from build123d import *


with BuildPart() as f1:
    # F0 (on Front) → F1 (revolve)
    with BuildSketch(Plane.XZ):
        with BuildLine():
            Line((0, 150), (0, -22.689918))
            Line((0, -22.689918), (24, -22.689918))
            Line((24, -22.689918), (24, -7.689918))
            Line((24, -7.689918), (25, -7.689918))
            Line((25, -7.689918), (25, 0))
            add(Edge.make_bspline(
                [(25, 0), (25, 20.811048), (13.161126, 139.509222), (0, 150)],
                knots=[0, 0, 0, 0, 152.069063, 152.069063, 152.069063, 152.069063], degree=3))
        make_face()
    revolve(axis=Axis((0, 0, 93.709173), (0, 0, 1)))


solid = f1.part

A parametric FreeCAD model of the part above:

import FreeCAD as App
import Part
import Sketcher

V = App.Vector
Q = App.Units.Quantity

doc = App.newDocument("Part")
params = doc.addObject("Spreadsheet::Sheet", "Params")
for row, (alias, value) in enumerate([
    ("sketch1_width", "24 mm"),
    ("sketch1_height", "15 mm"),
    ("revolution_angle", "360 deg"),
], start=1):
    params.set(f"A{row}", alias)
    params.set(f"B{row}", "=" + value)
    params.setAlias(f"B{row}", alias)

body = doc.addObject("PartDesign::Body", "Body")

# Sketch on XZ plane
sketch1 = body.newObject("Sketcher::SketchObject", "Sketch")
sketch1.AttachmentSupport = (doc.getObject("XZ_Plane"), [""])
sketch1.MapMode = "FlatFace"
sketch1.addGeometry([
    Part.LineSegment(V(0, 150, 0), V(0, -22.689918, 0)),  # 0
    Part.LineSegment(V(0, -22.689918, 0), V(24, -22.689918, 0)),  # 1
    Part.LineSegment(V(24, -22.689918, 0), V(24, -7.689918, 0)),  # 2
    Part.LineSegment(V(24, -7.689918, 0), V(25, -7.689918, 0)),  # 3
    Part.LineSegment(V(25, -7.689918, 0), V(25, 0, 0)),  # 4
    Part.BSplineCurve([V(25, 0, 0), V(25, 20.811048, 0), V(13.161126, 139.509222, 0), V(0, 150, 0)], [4, 4], [0, 152.069063], False, 3, [1, 1, 1, 1], False),  # 5
], False)
sketch1.addConstraint([
    Sketcher.Constraint("Block", 5),
    Sketcher.Constraint("Coincident", 0, 2, 1, 1),
    Sketcher.Constraint("Coincident", 1, 2, 2, 1),
    Sketcher.Constraint("Coincident", 2, 2, 3, 1),
    Sketcher.Constraint("Coincident", 3, 2, 4, 1),
    Sketcher.Constraint("Coincident", 4, 2, 5, 1),
    Sketcher.Constraint("Coincident", 5, 2, 0, 1),
    Sketcher.Constraint("Vertical", 0),
    Sketcher.Constraint("Horizontal", 1),
    Sketcher.Constraint("Vertical", 2),
    Sketcher.Constraint("Horizontal", 3),
    Sketcher.Constraint("Vertical", 4),
    Sketcher.Constraint("DistanceX", 1, 1, 1, 2, Q("24 mm")),
    Sketcher.Constraint("DistanceY", 2, 1, 2, 2, Q("15 mm")),
    Sketcher.Constraint("DistanceY", 0, 2, 0, 1, Q("172.689918 mm")),
])
sketch1.setExpression("Constraints[12]", "Params.sketch1_width")
sketch1.setExpression("Constraints[13]", "Params.sketch1_height")
revolution = body.newObject("PartDesign::Revolution", "Revolution")
revolution.Profile = sketch1
revolution.ReferenceAxis = (sketch1, ["V_Axis"])
revolution.setExpression("Angle", "Params.revolution_angle")

doc.recompute()
